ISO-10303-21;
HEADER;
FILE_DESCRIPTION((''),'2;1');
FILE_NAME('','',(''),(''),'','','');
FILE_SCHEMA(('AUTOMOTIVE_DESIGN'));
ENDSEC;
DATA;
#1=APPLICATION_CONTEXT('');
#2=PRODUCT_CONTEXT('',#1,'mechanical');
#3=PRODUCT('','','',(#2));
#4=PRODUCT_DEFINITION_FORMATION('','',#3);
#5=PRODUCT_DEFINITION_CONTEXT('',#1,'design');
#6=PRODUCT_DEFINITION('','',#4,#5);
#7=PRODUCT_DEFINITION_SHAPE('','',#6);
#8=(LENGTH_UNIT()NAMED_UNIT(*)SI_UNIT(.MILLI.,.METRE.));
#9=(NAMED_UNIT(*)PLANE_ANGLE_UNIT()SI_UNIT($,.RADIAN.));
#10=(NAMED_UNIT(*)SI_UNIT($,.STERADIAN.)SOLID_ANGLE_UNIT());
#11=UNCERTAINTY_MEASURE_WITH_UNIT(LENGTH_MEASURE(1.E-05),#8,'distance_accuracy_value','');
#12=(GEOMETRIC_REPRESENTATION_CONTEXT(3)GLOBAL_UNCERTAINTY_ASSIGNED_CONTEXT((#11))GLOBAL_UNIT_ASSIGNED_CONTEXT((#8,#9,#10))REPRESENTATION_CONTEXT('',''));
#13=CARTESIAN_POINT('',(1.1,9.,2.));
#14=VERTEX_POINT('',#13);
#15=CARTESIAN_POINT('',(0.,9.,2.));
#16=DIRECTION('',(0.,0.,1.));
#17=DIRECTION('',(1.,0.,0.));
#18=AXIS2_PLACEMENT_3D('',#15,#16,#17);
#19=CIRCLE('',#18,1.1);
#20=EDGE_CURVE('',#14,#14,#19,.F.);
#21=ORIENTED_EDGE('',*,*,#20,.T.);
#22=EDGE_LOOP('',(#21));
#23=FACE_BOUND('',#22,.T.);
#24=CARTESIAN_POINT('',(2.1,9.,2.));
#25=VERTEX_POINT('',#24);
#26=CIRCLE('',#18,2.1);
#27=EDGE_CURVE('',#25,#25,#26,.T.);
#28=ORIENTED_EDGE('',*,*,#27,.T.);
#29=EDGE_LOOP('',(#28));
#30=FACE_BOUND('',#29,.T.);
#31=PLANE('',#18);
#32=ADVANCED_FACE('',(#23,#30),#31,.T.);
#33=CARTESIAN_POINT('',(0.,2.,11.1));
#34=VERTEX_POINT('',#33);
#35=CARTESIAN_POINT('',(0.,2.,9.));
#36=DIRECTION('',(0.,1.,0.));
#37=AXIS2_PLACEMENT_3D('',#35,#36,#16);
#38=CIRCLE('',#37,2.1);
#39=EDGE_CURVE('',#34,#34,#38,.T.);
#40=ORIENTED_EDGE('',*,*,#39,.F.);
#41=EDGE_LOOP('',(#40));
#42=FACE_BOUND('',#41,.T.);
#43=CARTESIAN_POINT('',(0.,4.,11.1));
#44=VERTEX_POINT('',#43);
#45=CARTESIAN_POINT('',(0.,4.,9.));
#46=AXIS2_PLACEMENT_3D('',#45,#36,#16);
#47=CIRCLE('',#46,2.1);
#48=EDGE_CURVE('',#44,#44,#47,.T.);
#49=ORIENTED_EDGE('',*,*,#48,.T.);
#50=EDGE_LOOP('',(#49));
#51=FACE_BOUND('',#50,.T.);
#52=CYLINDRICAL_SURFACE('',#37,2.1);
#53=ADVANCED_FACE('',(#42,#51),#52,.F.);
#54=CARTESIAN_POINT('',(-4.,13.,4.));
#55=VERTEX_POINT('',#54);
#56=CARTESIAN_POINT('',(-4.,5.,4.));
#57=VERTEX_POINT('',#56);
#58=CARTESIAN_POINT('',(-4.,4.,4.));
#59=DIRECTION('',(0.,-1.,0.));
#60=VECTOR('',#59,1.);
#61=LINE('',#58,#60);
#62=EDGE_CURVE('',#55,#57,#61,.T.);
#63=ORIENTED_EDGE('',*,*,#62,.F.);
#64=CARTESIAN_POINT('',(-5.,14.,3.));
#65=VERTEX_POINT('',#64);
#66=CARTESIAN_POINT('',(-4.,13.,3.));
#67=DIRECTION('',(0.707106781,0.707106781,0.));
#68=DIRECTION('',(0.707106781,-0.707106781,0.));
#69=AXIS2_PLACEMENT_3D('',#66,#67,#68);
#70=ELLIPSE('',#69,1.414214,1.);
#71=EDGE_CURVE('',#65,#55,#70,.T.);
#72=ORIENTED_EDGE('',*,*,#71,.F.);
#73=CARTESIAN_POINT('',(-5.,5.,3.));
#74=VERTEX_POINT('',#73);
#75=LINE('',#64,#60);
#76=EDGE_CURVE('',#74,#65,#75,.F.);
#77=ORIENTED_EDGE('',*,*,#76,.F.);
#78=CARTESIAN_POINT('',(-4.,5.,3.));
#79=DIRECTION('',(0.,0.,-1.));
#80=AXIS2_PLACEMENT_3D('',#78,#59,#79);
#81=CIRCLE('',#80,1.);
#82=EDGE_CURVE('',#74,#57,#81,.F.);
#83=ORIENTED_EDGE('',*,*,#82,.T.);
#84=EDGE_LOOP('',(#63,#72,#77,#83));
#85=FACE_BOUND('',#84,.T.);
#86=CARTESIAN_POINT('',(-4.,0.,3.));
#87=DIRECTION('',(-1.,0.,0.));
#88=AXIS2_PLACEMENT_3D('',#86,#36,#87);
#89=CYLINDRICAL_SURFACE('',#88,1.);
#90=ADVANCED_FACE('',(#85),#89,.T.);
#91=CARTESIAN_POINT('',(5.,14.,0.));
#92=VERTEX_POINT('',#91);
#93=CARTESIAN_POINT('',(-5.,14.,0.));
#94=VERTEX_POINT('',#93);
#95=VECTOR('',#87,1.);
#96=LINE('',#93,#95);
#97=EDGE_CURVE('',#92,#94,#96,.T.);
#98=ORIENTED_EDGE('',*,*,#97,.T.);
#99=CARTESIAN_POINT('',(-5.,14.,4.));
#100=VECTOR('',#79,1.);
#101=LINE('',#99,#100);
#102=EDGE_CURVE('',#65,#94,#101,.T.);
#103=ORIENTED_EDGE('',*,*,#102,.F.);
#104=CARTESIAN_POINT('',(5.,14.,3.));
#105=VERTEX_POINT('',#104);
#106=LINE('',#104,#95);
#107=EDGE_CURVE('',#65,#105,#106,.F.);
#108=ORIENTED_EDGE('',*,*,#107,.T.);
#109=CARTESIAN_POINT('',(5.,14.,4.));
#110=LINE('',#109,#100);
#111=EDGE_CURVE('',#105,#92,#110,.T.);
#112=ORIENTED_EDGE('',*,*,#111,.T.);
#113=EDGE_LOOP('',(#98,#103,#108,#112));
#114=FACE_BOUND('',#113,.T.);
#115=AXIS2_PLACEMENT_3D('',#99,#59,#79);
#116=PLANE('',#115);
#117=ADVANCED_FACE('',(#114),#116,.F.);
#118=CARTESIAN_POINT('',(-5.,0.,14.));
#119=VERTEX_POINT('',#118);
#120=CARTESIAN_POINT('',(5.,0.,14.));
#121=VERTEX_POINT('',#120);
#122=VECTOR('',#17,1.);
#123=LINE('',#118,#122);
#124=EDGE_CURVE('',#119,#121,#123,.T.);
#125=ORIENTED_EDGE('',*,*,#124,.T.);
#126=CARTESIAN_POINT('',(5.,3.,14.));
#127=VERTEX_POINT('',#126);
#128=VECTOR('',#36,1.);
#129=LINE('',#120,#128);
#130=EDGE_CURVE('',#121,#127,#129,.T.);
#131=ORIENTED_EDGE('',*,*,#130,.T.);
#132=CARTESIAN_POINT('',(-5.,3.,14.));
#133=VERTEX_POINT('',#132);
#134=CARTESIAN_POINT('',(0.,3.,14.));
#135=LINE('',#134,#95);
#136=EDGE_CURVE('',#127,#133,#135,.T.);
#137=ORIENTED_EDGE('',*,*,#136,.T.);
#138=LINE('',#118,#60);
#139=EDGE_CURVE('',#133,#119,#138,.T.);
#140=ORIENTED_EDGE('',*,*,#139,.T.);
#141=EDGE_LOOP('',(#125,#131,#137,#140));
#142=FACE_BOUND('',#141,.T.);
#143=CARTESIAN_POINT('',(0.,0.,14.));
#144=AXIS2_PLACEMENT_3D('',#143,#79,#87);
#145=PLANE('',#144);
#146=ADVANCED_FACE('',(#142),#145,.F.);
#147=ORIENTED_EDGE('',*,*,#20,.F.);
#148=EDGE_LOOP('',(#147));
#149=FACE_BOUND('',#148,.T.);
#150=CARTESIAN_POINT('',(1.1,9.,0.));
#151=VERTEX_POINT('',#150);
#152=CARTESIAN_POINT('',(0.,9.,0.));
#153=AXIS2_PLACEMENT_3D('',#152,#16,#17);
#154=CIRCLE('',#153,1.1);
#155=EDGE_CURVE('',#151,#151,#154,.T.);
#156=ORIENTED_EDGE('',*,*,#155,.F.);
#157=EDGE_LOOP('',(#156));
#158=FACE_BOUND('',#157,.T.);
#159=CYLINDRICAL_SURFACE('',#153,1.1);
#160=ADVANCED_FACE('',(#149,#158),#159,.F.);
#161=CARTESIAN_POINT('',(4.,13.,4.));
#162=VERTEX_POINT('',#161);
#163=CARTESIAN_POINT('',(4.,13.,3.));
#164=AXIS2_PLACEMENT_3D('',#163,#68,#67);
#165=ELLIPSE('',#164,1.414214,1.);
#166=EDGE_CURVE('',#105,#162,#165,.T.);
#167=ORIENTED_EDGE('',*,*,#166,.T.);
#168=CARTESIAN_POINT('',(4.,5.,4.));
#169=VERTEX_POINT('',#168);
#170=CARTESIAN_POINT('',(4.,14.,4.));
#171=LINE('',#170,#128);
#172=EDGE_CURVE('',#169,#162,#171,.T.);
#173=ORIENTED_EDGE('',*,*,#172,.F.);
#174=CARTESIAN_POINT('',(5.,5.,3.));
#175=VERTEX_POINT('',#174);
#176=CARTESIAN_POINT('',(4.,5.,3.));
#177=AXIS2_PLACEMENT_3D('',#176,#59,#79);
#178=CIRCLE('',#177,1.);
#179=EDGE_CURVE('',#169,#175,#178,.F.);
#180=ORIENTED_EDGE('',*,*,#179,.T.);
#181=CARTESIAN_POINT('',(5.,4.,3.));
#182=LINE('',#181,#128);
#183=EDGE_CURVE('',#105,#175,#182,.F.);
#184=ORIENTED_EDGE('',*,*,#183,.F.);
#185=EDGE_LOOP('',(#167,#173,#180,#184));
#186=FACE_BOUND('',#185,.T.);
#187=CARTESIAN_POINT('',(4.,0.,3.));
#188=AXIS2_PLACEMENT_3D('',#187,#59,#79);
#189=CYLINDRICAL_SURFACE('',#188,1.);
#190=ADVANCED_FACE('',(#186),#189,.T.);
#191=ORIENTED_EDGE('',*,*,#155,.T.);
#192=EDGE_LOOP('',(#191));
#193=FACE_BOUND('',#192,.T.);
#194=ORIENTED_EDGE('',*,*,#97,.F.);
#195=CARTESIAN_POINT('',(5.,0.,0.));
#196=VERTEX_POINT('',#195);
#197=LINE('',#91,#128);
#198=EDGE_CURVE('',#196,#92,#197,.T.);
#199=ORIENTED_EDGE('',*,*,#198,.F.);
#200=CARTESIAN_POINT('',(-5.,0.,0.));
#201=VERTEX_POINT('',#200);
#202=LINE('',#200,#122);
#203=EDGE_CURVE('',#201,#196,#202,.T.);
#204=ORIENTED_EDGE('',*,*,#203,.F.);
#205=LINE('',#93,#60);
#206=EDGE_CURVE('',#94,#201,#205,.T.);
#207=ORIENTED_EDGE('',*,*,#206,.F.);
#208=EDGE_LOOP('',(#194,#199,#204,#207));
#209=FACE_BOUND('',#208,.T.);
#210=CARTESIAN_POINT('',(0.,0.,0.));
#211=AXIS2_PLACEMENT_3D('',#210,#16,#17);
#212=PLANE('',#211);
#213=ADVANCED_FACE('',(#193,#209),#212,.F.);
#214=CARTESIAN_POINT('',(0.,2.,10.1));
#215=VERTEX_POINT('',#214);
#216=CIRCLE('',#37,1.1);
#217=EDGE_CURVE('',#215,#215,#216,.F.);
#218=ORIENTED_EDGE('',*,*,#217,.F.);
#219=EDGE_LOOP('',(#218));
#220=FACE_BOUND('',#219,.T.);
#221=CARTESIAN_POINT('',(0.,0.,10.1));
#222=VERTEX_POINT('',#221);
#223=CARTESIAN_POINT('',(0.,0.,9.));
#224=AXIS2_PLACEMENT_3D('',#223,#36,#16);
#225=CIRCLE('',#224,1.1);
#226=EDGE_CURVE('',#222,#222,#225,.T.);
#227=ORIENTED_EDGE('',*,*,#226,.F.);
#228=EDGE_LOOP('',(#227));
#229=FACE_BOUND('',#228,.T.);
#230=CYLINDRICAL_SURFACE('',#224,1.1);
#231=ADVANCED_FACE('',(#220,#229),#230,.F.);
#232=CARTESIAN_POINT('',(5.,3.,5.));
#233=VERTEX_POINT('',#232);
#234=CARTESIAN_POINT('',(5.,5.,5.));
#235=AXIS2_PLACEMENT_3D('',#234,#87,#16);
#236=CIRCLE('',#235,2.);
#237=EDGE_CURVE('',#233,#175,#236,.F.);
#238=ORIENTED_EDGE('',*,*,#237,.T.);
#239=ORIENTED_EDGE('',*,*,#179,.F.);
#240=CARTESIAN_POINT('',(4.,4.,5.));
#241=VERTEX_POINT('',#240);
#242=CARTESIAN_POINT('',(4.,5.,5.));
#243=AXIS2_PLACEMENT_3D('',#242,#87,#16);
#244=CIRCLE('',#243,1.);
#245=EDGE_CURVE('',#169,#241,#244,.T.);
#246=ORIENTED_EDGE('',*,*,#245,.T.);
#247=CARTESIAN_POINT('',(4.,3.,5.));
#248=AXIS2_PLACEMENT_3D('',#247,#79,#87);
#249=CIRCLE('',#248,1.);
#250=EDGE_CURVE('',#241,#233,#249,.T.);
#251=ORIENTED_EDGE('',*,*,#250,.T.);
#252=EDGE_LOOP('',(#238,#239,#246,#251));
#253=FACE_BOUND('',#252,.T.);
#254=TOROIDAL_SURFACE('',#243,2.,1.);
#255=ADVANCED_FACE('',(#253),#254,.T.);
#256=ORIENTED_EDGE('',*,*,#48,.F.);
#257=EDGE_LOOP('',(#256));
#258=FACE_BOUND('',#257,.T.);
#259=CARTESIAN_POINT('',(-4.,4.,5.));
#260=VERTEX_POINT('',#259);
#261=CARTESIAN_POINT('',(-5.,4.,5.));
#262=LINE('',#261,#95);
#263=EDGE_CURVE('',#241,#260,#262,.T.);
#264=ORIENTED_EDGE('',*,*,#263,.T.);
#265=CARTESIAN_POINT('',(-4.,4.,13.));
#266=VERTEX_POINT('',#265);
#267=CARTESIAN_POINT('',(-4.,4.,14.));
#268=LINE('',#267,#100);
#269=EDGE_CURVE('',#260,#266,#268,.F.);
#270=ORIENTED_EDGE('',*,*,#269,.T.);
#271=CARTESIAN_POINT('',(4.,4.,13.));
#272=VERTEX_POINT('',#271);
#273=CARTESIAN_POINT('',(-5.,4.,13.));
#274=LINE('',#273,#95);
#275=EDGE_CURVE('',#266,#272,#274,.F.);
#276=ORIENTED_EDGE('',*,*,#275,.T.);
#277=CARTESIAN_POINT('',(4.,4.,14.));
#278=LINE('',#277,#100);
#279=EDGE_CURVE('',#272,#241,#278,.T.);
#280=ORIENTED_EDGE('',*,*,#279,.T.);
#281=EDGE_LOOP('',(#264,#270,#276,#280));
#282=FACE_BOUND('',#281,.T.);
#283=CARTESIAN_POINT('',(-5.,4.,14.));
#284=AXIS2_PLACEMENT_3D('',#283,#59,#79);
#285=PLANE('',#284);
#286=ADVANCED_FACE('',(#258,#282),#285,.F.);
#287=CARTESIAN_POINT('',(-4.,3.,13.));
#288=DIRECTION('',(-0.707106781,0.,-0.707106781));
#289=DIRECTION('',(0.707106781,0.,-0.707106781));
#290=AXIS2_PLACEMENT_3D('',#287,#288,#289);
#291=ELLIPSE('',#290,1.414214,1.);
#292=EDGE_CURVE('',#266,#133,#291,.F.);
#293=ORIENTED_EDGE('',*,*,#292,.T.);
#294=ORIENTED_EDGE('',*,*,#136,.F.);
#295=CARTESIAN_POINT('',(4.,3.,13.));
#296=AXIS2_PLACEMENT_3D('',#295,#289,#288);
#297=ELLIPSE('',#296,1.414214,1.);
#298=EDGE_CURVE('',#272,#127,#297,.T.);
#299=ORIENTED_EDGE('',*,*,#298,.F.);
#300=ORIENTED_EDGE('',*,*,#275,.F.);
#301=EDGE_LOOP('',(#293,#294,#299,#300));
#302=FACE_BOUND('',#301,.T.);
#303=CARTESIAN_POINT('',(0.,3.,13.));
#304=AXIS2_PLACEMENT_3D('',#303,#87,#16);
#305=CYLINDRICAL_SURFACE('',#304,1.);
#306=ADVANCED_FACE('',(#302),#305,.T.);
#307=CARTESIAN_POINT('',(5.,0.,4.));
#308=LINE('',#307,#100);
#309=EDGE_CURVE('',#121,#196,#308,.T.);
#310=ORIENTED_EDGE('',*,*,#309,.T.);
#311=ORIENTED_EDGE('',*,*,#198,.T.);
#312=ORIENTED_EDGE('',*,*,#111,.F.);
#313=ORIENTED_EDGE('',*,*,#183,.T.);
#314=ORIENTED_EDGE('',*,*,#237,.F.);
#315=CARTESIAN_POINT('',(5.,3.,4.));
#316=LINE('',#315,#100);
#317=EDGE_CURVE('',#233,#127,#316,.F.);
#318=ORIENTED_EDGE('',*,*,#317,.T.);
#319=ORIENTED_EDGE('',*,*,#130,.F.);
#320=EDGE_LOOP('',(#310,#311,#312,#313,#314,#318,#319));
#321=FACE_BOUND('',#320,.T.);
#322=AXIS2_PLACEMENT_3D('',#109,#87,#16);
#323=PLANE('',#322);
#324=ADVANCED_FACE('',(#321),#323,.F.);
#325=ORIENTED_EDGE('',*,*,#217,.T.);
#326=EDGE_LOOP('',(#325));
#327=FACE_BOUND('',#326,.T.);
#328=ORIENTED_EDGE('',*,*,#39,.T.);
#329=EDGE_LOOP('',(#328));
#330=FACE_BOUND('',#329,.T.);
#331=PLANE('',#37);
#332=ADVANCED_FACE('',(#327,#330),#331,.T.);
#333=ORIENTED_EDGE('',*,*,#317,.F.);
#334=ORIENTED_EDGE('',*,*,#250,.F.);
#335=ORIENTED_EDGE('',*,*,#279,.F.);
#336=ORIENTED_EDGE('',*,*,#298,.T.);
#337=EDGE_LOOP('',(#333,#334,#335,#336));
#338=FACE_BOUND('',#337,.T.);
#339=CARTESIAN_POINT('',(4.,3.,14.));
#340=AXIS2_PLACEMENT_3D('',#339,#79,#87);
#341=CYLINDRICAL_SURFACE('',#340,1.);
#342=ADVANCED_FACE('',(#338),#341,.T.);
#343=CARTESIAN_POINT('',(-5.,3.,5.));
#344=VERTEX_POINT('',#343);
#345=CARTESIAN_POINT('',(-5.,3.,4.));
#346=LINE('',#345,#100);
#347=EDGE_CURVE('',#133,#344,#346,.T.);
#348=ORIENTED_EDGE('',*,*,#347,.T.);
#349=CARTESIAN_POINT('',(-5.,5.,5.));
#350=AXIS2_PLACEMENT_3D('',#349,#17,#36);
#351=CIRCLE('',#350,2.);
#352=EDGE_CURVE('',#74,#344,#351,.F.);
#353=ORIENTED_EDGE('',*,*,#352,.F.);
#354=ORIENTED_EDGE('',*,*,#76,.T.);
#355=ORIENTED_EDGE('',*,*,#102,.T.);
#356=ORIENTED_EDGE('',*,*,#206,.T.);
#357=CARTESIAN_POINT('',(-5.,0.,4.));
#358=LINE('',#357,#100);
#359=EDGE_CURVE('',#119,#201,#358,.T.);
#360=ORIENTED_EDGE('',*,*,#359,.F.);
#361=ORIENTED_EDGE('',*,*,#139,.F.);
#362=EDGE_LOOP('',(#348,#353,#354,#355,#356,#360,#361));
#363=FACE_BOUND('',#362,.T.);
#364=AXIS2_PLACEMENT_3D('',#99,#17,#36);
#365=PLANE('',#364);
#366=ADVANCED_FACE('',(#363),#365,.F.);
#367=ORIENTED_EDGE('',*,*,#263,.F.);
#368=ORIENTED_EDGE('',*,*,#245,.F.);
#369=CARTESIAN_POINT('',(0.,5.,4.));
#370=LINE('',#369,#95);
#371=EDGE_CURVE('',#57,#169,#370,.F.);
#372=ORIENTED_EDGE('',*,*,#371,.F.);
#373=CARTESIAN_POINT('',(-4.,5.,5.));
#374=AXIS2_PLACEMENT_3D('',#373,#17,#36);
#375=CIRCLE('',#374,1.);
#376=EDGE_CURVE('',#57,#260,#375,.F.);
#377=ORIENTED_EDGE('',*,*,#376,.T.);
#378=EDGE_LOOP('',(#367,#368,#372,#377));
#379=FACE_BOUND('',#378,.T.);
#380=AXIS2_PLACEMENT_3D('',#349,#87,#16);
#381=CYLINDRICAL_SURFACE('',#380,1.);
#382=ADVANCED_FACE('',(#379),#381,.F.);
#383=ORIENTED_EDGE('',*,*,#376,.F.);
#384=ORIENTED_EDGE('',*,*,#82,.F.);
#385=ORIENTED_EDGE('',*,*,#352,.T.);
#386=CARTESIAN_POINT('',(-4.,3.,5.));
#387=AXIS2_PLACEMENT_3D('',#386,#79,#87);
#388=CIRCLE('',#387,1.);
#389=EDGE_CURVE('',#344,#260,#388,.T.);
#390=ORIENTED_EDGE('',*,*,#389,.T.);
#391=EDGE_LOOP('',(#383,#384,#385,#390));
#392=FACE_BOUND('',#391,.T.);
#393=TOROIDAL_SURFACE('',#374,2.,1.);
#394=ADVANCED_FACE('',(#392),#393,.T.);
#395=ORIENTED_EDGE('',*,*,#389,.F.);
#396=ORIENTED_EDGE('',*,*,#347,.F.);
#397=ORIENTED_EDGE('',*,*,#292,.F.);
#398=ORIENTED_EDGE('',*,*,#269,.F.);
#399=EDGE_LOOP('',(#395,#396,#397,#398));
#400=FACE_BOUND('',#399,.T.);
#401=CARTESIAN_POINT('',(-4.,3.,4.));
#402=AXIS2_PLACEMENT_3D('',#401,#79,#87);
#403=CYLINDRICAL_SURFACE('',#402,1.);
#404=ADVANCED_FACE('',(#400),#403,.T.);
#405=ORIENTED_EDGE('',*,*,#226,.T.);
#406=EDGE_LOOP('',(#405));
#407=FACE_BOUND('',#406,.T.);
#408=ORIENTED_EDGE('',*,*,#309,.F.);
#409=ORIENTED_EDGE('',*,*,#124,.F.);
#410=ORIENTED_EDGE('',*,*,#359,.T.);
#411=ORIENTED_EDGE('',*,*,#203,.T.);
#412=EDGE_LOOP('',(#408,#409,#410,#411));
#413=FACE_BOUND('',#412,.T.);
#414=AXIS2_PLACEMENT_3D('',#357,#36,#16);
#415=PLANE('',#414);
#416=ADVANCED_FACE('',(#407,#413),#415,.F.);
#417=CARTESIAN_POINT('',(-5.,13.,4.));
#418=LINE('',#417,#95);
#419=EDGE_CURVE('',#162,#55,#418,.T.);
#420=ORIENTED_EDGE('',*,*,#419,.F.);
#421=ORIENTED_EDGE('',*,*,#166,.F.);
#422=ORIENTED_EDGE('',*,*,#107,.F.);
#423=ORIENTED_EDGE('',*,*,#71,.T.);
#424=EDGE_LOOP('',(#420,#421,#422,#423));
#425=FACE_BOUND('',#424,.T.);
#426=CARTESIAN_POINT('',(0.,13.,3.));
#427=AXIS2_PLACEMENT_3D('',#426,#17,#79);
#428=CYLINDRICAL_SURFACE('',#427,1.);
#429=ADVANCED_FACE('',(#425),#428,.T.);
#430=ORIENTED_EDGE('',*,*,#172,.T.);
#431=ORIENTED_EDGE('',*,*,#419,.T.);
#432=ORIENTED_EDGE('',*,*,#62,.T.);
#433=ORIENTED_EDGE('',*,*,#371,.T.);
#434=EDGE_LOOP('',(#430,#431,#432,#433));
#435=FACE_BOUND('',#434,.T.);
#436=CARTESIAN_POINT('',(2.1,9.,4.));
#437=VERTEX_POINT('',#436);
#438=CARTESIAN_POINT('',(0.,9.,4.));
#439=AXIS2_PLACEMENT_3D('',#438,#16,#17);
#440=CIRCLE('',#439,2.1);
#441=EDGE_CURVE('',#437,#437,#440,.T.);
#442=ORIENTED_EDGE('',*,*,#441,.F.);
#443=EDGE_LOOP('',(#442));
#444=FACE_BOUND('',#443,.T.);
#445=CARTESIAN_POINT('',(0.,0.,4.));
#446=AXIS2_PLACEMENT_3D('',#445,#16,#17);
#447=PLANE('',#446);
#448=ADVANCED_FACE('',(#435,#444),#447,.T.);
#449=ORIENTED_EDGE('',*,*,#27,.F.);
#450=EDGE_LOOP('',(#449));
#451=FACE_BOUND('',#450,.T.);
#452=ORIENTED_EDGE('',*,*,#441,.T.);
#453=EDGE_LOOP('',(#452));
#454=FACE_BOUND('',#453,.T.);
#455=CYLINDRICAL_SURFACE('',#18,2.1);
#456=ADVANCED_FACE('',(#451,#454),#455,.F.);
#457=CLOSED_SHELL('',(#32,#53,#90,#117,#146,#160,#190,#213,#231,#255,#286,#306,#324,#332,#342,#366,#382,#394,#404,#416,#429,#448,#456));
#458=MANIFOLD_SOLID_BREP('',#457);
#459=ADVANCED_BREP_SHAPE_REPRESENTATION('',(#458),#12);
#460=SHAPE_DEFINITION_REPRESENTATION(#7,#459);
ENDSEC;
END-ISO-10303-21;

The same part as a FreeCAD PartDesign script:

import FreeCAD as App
import Part
import Sketcher
from FreeCAD import Vector
Q = App.Units.Quantity


def edges_at(feature, points):
    """Names of the edges that pass closest to the given points."""
    edges = feature.Shape.Edges
    near = lambda p: min(range(len(edges)), key=lambda i: edges[i].distToShape(Part.Vertex(*p))[0])
    return sorted({f"Edge{near(p) + 1}" for p in points})


def add_polygon(sketch, points):
    """Adds a closed chain of lines whose ends are joined by coincident constraints."""
    first, n = sketch.GeometryCount, len(points)
    for a, b in zip(points, points[1:] + points[:1]):
        sketch.addGeometry(Part.LineSegment(App.Vector(*a, 0), App.Vector(*b, 0)), False)
    for i in range(n):
        sketch.addConstraint(Sketcher.Constraint("Coincident", first + i, 2, first + (i + 1) % n, 1))

doc = App.newDocument("Part")
body = doc.addObject("PartDesign::Body", "Body")

# Sketch on XY plane
sketch1 = doc.addObject("Sketcher::SketchObject", "Sketch")
body.addObject(sketch1)
sketch1.AttachmentSupport = (doc.XY_Plane, [""])
sketch1.MapMode = "FlatFace"
add_polygon(sketch1, [(-5, 14), (-5, 0), (5, 0), (5, 14)])  # lines 0-3
sketch1.addConstraint([
    Sketcher.Constraint("Vertical", 0),
    Sketcher.Constraint("Horizontal", 1),
    Sketcher.Constraint("Vertical", 2),
    Sketcher.Constraint("Horizontal", 3),
    Sketcher.Constraint("Symmetric", 0, 2, 1, 2, -1, 1),
    Sketcher.Constraint("DistanceX", 1, 1, 1, 2, Q("10 mm")),
    Sketcher.Constraint("DistanceY", 0, 2, 0, 1, Q("14 mm")),
])
pad1 = doc.addObject("PartDesign::Pad", "Pad")
body.addObject(pad1)
pad1.Profile = sketch1
pad1.Length = 4

# Sketch on XY plane
sketch2 = doc.addObject("Sketcher::SketchObject", "Sketch001")
body.addObject(sketch2)
sketch2.AttachmentSupport = (doc.XY_Plane, [""])
sketch2.MapMode = "FlatFace"
sketch2.AttachmentOffset = App.Placement(Vector(0, 0, 4), App.Rotation())
add_polygon(sketch2, [(-5, 4), (-5, 0), (5, 0), (5, 4)])  # lines 0-3
sketch2.addConstraint([
    Sketcher.Constraint("Vertical", 0),
    Sketcher.Constraint("Horizontal", 1),
    Sketcher.Constraint("Vertical", 2),
    Sketcher.Constraint("Horizontal", 3),
    Sketcher.Constraint("Symmetric", 0, 2, 1, 2, -1, 1),
    Sketcher.Constraint("DistanceX", 1, 1, 1, 2, Q("10 mm")),
    Sketcher.Constraint("DistanceY", 0, 2, 0, 1, Q("4 mm")),
])
pad2 = doc.addObject("PartDesign::Pad", "Pad001")
body.addObject(pad2)
pad2.Profile = sketch2
pad2.Length = 10

# Sketch on XY plane
sketch3 = doc.addObject("Sketcher::SketchObject", "Sketch002")
body.addObject(sketch3)
sketch3.AttachmentSupport = (doc.XY_Plane, [""])
sketch3.MapMode = "FlatFace"
sketch3.AttachmentOffset = App.Placement(Vector(0, 0, 4), App.Rotation())
sketch3.addGeometry(Part.Circle(Vector(0, 9, 0), Vector(0, 0, 1), 1.1), False)
sketch3.addConstraint([
    Sketcher.Constraint("PointOnObject", 0, 3, -2),
    Sketcher.Constraint("Diameter", 0, Q("2.2 mm")),
    Sketcher.Constraint("DistanceY", -1, 1, 0, 3, Q("9 mm")),
])
pocket1 = doc.addObject("PartDesign::Pocket", "Pocket")
body.addObject(pocket1)
pocket1.Profile = sketch3
pocket1.Type = "ThroughAll"
doc.recompute()

fillet = doc.addObject("PartDesign::Fillet", "Fillet")
body.addObject(fillet)
fillet.Base = (pocket1, edges_at(pocket1, [
    (5, 9, 4),
    (-5, 4, 9),
    (0, 4, 4),
    (5, 4, 9),
    (0, 14, 4),
    (0, 4, 14),
    (-5, 9, 4),
]))
fillet.Radius = 1

# Sketch on XZ plane
sketch4 = doc.addObject("Sketcher::SketchObject", "Sketch003")
body.addObject(sketch4)
sketch4.AttachmentSupport = (doc.XZ_Plane, [""])
sketch4.MapMode = "FlatFace"
sketch4.AttachmentOffset = App.Placement(Vector(0, 0, -4), App.Rotation())
sketch4.addGeometry(Part.Circle(Vector(0, 9, 0), Vector(0, 0, 1), 1.1), False)
sketch4.addConstraint([
    Sketcher.Constraint("PointOnObject", 0, 3, -2),
    Sketcher.Constraint("Diameter", 0, Q("2.2 mm")),
    Sketcher.Constraint("DistanceY", -1, 1, 0, 3, Q("9 mm")),
])
pocket2 = doc.addObject("PartDesign::Pocket", "Pocket001")
body.addObject(pocket2)
pocket2.Profile = sketch4
pocket2.Type = "ThroughAll"
pocket2.Reversed = True

# Sketch on XY plane
sketch5 = doc.addObject("Sketcher::SketchObject", "Sketch004")
body.addObject(sketch5)
sketch5.AttachmentSupport = (doc.XY_Plane, [""])
sketch5.MapMode = "FlatFace"
sketch5.AttachmentOffset = App.Placement(Vector(0, 0, 4), App.Rotation())
sketch5.addGeometry(Part.Circle(Vector(0, 9, 0), Vector(0, 0, 1), 2.1), False)
sketch5.addConstraint([
    Sketcher.Constraint("PointOnObject", 0, 3, -2),
    Sketcher.Constraint("Diameter", 0, Q("4.2 mm")),
    Sketcher.Constraint("DistanceY", -1, 1, 0, 3, Q("9 mm")),
])
pocket3 = doc.addObject("PartDesign::Pocket", "Pocket002")
body.addObject(pocket3)
pocket3.Profile = sketch5
pocket3.Length = 2

# Sketch on XZ plane
sketch6 = doc.addObject("Sketcher::SketchObject", "Sketch005")
body.addObject(sketch6)
sketch6.AttachmentSupport = (doc.XZ_Plane, [""])
sketch6.MapMode = "FlatFace"
sketch6.AttachmentOffset = App.Placement(Vector(0, 0, -4), App.Rotation())
sketch6.addGeometry(Part.Circle(Vector(0, 9, 0), Vector(0, 0, 1), 2.1), False)
sketch6.addConstraint([
    Sketcher.Constraint("PointOnObject", 0, 3, -2),
    Sketcher.Constraint("Diameter", 0, Q("4.2 mm")),
    Sketcher.Constraint("DistanceY", -1, 1, 0, 3, Q("9 mm")),
])
pocket4 = doc.addObject("PartDesign::Pocket", "Pocket003")
body.addObject(pocket4)
pocket4.Profile = sketch6
pocket4.Length = 2
pocket4.Reversed = True

doc.recompute()
